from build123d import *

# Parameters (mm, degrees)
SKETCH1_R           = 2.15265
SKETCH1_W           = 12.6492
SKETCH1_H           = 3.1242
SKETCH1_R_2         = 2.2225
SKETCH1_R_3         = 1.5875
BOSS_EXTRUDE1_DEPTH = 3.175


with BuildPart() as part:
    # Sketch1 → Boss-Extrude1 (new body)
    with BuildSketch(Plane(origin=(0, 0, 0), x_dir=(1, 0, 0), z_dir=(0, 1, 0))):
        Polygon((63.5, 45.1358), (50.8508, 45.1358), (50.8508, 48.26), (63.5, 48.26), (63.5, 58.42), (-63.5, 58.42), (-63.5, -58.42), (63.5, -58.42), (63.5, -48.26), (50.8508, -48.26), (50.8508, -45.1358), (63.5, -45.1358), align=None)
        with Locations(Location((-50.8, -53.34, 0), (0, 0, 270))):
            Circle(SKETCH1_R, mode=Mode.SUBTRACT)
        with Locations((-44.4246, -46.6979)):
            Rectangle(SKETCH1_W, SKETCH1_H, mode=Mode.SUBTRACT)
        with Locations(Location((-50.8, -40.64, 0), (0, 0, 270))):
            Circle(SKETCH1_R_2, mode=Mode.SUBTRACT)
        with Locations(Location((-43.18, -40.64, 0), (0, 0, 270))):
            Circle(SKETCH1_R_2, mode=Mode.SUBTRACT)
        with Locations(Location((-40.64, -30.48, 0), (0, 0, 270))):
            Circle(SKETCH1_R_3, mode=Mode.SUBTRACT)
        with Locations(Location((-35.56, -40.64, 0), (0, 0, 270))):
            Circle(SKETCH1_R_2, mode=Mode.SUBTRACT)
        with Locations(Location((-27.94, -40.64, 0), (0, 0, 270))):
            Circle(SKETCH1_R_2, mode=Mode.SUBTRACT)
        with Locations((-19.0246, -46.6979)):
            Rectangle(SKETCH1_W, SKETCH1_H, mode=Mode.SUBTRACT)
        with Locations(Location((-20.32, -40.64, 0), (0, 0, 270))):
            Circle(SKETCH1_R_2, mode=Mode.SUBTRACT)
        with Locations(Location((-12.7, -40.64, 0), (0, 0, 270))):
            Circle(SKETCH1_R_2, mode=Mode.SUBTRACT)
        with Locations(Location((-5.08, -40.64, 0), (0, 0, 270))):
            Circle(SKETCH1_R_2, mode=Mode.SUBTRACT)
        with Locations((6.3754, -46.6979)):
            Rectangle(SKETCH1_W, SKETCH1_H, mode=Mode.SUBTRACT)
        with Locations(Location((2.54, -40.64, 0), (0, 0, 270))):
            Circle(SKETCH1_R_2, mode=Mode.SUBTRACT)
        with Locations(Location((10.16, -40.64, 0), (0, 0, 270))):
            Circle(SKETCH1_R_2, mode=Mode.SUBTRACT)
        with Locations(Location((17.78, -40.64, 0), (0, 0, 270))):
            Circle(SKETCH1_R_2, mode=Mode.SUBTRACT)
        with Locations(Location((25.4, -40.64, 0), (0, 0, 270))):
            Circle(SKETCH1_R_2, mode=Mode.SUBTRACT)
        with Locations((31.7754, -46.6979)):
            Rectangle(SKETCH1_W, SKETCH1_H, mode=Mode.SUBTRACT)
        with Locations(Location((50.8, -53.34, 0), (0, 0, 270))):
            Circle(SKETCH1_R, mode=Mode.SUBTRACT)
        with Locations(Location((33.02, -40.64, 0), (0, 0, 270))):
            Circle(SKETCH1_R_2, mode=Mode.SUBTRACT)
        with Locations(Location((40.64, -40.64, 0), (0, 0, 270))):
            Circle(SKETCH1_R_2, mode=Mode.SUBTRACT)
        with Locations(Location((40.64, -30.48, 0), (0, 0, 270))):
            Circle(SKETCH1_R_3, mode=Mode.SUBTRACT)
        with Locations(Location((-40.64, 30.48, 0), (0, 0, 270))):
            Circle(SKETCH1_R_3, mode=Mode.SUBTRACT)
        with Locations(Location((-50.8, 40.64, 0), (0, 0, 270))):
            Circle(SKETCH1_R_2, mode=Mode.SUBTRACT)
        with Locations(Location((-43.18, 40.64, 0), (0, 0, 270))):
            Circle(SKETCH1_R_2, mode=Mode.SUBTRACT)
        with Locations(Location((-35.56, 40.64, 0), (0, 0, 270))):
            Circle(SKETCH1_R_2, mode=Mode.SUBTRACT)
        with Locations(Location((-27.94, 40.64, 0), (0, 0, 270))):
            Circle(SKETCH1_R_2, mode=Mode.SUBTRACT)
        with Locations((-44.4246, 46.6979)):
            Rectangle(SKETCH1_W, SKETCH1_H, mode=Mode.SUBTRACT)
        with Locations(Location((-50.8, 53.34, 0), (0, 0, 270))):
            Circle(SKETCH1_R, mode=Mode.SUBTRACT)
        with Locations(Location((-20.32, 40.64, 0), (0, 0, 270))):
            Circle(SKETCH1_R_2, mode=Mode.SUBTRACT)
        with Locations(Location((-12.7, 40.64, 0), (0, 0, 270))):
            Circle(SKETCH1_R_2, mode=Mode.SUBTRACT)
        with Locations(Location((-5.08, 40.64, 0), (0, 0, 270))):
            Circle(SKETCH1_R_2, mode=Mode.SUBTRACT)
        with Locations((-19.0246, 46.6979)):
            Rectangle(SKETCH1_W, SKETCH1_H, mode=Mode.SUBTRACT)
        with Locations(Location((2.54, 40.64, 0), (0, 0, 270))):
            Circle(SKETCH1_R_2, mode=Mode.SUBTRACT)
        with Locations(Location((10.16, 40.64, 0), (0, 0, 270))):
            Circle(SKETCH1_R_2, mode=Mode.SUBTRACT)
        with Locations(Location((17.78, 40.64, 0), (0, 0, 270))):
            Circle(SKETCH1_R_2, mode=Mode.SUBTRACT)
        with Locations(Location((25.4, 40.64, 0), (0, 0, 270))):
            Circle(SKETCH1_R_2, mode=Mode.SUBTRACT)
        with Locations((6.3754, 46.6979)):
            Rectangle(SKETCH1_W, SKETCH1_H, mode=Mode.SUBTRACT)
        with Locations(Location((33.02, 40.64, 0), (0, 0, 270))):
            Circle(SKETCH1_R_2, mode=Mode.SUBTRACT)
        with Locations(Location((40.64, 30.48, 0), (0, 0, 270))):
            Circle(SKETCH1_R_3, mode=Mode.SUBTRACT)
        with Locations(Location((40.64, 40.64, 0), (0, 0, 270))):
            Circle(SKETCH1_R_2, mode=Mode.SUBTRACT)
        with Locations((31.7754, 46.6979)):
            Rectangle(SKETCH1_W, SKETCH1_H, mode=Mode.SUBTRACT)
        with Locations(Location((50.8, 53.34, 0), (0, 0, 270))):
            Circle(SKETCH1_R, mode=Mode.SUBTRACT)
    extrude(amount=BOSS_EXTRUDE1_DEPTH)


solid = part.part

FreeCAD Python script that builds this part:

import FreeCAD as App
import Part
import Sketcher

V = App.Vector
Q = App.Units.Quantity

doc = App.newDocument("Part")
body = doc.addObject("PartDesign::Body", "Body")

# Sketch on XZ plane
sketch1 = body.newObject("Sketcher::SketchObject", "Sketch")
sketch1.AttachmentSupport = (doc.getObject("XZ_Plane"), [""])
sketch1.MapMode = "FlatFace"
sketch1.addGeometry([
    Part.LineSegment(V(63.5, -45.1358, 0), V(50.8508, -45.1358, 0)),  # 0
    Part.LineSegment(V(50.8508, -45.1358, 0), V(50.8508, -48.26, 0)),  # 1
    Part.LineSegment(V(50.8508, -48.26, 0), V(63.5, -48.26, 0)),  # 2
    Part.LineSegment(V(63.5, -48.26, 0), V(63.5, -58.42, 0)),  # 3
    Part.LineSegment(V(63.5, -58.42, 0), V(-63.5, -58.42, 0)),  # 4
    Part.LineSegment(V(-63.5, -58.42, 0), V(-63.5, 58.42, 0)),  # 5
    Part.LineSegment(V(-63.5, 58.42, 0), V(63.5, 58.42, 0)),  # 6
    Part.LineSegment(V(63.5, 58.42, 0), V(63.5, 48.26, 0)),  # 7
    Part.LineSegment(V(63.5, 48.26, 0), V(50.8508, 48.26, 0)),  # 8
    Part.LineSegment(V(50.8508, 48.26, 0), V(50.8508, 45.1358, 0)),  # 9
    Part.LineSegment(V(50.8508, 45.1358, 0), V(63.5, 45.1358, 0)),  # 10
    Part.LineSegment(V(63.5, 45.1358, 0), V(63.5, -45.1358, 0)),  # 11
    Part.Circle(V(-50.8, 53.34, 0), V(0, 0, 1), 2.15265),  # 12
    Part.LineSegment(V(-38.1, 48.26, 0), V(-50.7492, 48.26, 0)),  # 13
    Part.LineSegment(V(-50.7492, 48.26, 0), V(-50.7492, 45.1358, 0)),  # 14
    Part.LineSegment(V(-50.7492, 45.1358, 0), V(-38.1, 45.1358, 0)),  # 15
    Part.LineSegment(V(-38.1, 45.1358, 0), V(-38.1, 48.26, 0)),  # 16
    Part.Circle(V(-50.8, 40.64, 0), V(0, 0, 1), 2.2225),  # 17
    Part.Circle(V(-43.18, 40.64, 0), V(0, 0, 1), 2.2225),  # 18
    Part.Circle(V(-40.64, 30.48, 0), V(0, 0, 1), 1.5875),  # 19
    Part.Circle(V(-35.56, 40.64, 0), V(0, 0, 1), 2.2225),  # 20
    Part.Circle(V(-27.94, 40.64, 0), V(0, 0, 1), 2.2225),  # 21
    Part.LineSegment(V(-12.7, 48.26, 0), V(-25.3492, 48.26, 0)),  # 22
    Part.LineSegment(V(-25.3492, 48.26, 0), V(-25.3492, 45.1358, 0)),  # 23
    Part.LineSegment(V(-25.3492, 45.1358, 0), V(-12.7, 45.1358, 0)),  # 24
    Part.LineSegment(V(-12.7, 45.1358, 0), V(-12.7, 48.26, 0)),  # 25
    Part.Circle(V(-20.32, 40.64, 0), V(0, 0, 1), 2.2225),  # 26
    Part.Circle(V(-12.7, 40.64, 0), V(0, 0, 1), 2.2225),  # 27
    Part.Circle(V(-5.08, 40.64, 0), V(0, 0, 1), 2.2225),  # 28
    Part.LineSegment(V(12.7, 48.26, 0), V(0.0508, 48.26, 0)),  # 29
    Part.LineSegment(V(0.0508, 48.26, 0), V(0.0508, 45.1358, 0)),  # 30
    Part.LineSegment(V(0.0508, 45.1358, 0), V(12.7, 45.1358, 0)),  # 31
    Part.LineSegment(V(12.7, 45.1358, 0), V(12.7, 48.26, 0)),  # 32
    Part.Circle(V(2.54, 40.64, 0), V(0, 0, 1), 2.2225),  # 33
    Part.Circle(V(10.16, 40.64, 0), V(0, 0, 1), 2.2225),  # 34
    Part.Circle(V(17.78, 40.64, 0), V(0, 0, 1), 2.2225),  # 35
    Part.Circle(V(25.4, 40.64, 0), V(0, 0, 1), 2.2225),  # 36
    Part.LineSegment(V(38.1, 48.26, 0), V(25.4508, 48.26, 0)),  # 37
    Part.LineSegment(V(25.4508, 48.26, 0), V(25.4508, 45.1358, 0)),  # 38
    Part.LineSegment(V(25.4508, 45.1358, 0), V(38.1, 45.1358, 0)),  # 39
    Part.LineSegment(V(38.1, 45.1358, 0), V(38.1, 48.26, 0)),  # 40
    Part.Circle(V(50.8, 53.34, 0), V(0, 0, 1), 2.15265),  # 41
    Part.Circle(V(33.02, 40.64, 0), V(0, 0, 1), 2.2225),  # 42
    Part.Circle(V(40.64, 40.64, 0), V(0, 0, 1), 2.2225),  # 43
    Part.Circle(V(40.64, 30.48, 0), V(0, 0, 1), 1.5875),  # 44
    Part.Circle(V(-40.64, -30.48, 0), V(0, 0, 1), 1.5875),  # 45
    Part.Circle(V(-50.8, -40.64, 0), V(0, 0, 1), 2.2225),  # 46
    Part.Circle(V(-43.18, -40.64, 0), V(0, 0, 1), 2.2225),  # 47
    Part.Circle(V(-35.56, -40.64, 0), V(0, 0, 1), 2.2225),  # 48
    Part.Circle(V(-27.94, -40.64, 0), V(0, 0, 1), 2.2225),  # 49
    Part.LineSegment(V(-38.1, -45.1358, 0), V(-50.7492, -45.1358, 0)),  # 50
    Part.LineSegment(V(-50.7492, -45.1358, 0), V(-50.7492, -48.26, 0)),  # 51
    Part.LineSegment(V(-50.7492, -48.26, 0), V(-38.1, -48.26, 0)),  # 52
    Part.LineSegment(V(-38.1, -48.26, 0), V(-38.1, -45.1358, 0)),  # 53
    Part.Circle(V(-50.8, -53.34, 0), V(0, 0, 1), 2.15265),  # 54
    Part.Circle(V(-20.32, -40.64, 0), V(0, 0, 1), 2.2225),  # 55
    Part.Circle(V(-12.7, -40.64, 0), V(0, 0, 1), 2.2225),  # 56
    Part.Circle(V(-5.08, -40.64, 0), V(0, 0, 1), 2.2225),  # 57
    Part.LineSegment(V(-12.7, -45.1358, 0), V(-25.3492, -45.1358, 0)),  # 58
    Part.LineSegment(V(-25.3492, -45.1358, 0), V(-25.3492, -48.26, 0)),  # 59
    Part.LineSegment(V(-25.3492, -48.26, 0), V(-12.7, -48.26, 0)),  # 60
    Part.LineSegment(V(-12.7, -48.26, 0), V(-12.7, -45.1358, 0)),  # 61
    Part.Circle(V(2.54, -40.64, 0), V(0, 0, 1), 2.2225),  # 62
    Part.Circle(V(10.16, -40.64, 0), V(0, 0, 1), 2.2225),  # 63
    Part.Circle(V(17.78, -40.64, 0), V(0, 0, 1), 2.2225),  # 64
    Part.Circle(V(25.4, -40.64, 0), V(0, 0, 1), 2.2225),  # 65
    Part.LineSegment(V(12.7, -45.1358, 0), V(0.0508, -45.1358, 0)),  # 66
    Part.LineSegment(V(0.0508, -45.1358, 0), V(0.0508, -48.26, 0)),  # 67
    Part.LineSegment(V(0.0508, -48.26, 0), V(12.7, -48.26, 0)),  # 68
    Part.LineSegment(V(12.7, -48.26, 0), V(12.7, -45.1358, 0)),  # 69
    Part.Circle(V(33.02, -40.64, 0), V(0, 0, 1), 2.2225),  # 70
    Part.Circle(V(40.64, -30.48, 0), V(0, 0, 1), 1.5875),  # 71
    Part.Circle(V(40.64, -40.64, 0), V(0, 0, 1), 2.2225),  # 72
    Part.LineSegment(V(38.1, -45.1358, 0), V(25.4508, -45.1358, 0)),  # 73
    Part.LineSegment(V(25.4508, -45.1358, 0), V(25.4508, -48.26, 0)),  # 74
    Part.LineSegment(V(25.4508, -48.26, 0), V(38.1, -48.26, 0)),  # 75
    Part.LineSegment(V(38.1, -48.26, 0), V(38.1, -45.1358, 0)),  # 76
    Part.Circle(V(50.8, -53.34, 0), V(0, 0, 1), 2.15265),  # 77
], False)
sketch1.addConstraint([
    Sketcher.Constraint("Coincident", 0, 2, 1, 1),
    Sketcher.Constraint("Coincident", 1, 2, 2, 1),
    Sketcher.Constraint("Coincident", 2, 2, 3, 1),
    Sketcher.Constraint("Coincident", 3, 2, 4, 1),
    Sketcher.Constraint("Coincident", 4, 2, 5, 1),
    Sketcher.Constraint("Coincident", 5, 2, 6, 1),
    Sketcher.Constraint("Coincident", 6, 2, 7, 1),
    Sketcher.Constraint("Coincident", 7, 2, 8, 1),
    Sketcher.Constraint("Coincident", 8, 2, 9, 1),
    Sketcher.Constraint("Coincident", 9, 2, 10, 1),
    Sketcher.Constraint("Coincident", 10, 2, 11, 1),
    Sketcher.Constraint("Coincident", 11, 2, 0, 1),
    Sketcher.Constraint("Coincident", 13, 2, 14, 1),
    Sketcher.Constraint("Coincident", 14, 2, 15, 1),
    Sketcher.Constraint("Coincident", 15, 2, 16, 1),
    Sketcher.Constraint("Coincident", 16, 2, 13, 1),
    Sketcher.Constraint("Coincident", 22, 2, 23, 1),
    Sketcher.Constraint("Coincident", 23, 2, 24, 1),
    Sketcher.Constraint("Coincident", 24, 2, 25, 1),
    Sketcher.Constraint("Coincident", 25, 2, 22, 1),
    Sketcher.Constraint("Coincident", 29, 2, 30, 1),
    Sketcher.Constraint("Coincident", 30, 2, 31, 1),
    Sketcher.Constraint("Coincident", 31, 2, 32, 1),
    Sketcher.Constraint("Coincident", 32, 2, 29, 1),
    Sketcher.Constraint("Coincident", 37, 2, 38, 1),
    Sketcher.Constraint("Coincident", 38, 2, 39, 1),
    Sketcher.Constraint("Coincident", 39, 2, 40, 1),
    Sketcher.Constraint("Coincident", 40, 2, 37, 1),
    Sketcher.Constraint("Coincident", 50, 2, 51, 1),
    Sketcher.Constraint("Coincident", 51, 2, 52, 1),
    Sketcher.Constraint("Coincident", 52, 2, 53, 1),
    Sketcher.Constraint("Coincident", 53, 2, 50, 1),
    Sketcher.Constraint("Coincident", 58, 2, 59, 1),
    Sketcher.Constraint("Coincident", 59, 2, 60, 1),
    Sketcher.Constraint("Coincident", 60, 2, 61, 1),
    Sketcher.Constraint("Coincident", 61, 2, 58, 1),
    Sketcher.Constraint("Coincident", 66, 2, 67, 1),
    Sketcher.Constraint("Coincident", 67, 2, 68, 1),
    Sketcher.Constraint("Coincident", 68, 2, 69, 1),
    Sketcher.Constraint("Coincident", 69, 2, 66, 1),
    Sketcher.Constraint("Coincident", 73, 2, 74, 1),
    Sketcher.Constraint("Coincident", 74, 2, 75, 1),
    Sketcher.Constraint("Coincident", 75, 2, 76, 1),
    Sketcher.Constraint("Coincident", 76, 2, 73, 1),
    Sketcher.Constraint("Horizontal", 0),
    Sketcher.Constraint("Vertical", 1),
    Sketcher.Constraint("Horizontal", 2),
    Sketcher.Constraint("Vertical", 3),
    Sketcher.Constraint("Horizontal", 4),
    Sketcher.Constraint("Vertical", 5),
    Sketcher.Constraint("Horizontal", 6),
    Sketcher.Constraint("Vertical", 7),
    Sketcher.Constraint("Horizontal", 8),
    Sketcher.Constraint("Vertical", 9),
    Sketcher.Constraint("Horizontal", 10),
    Sketcher.Constraint("Vertical", 11),
    Sketcher.Constraint("Horizontal", 13),
    Sketcher.Constraint("Vertical", 14),
    Sketcher.Constraint("Horizontal", 15),
    Sketcher.Constraint("Vertical", 16),
    Sketcher.Constraint("Horizontal", 22),
    Sketcher.Constraint("Vertical", 23),
    Sketcher.Constraint("Horizontal", 24),
    Sketcher.Constraint("Vertical", 25),
    Sketcher.Constraint("Horizontal", 29),
    Sketcher.Constraint("Vertical", 30),
    Sketcher.Constraint("Horizontal", 31),
    Sketcher.Constraint("Vertical", 32),
    Sketcher.Constraint("Horizontal", 37),
    Sketcher.Constraint("Vertical", 38),
    Sketcher.Constraint("Horizontal", 39),
    Sketcher.Constraint("Vertical", 40),
    Sketcher.Constraint("Horizontal", 50),
    Sketcher.Constraint("Vertical", 51),
    Sketcher.Constraint("Horizontal", 52),
    Sketcher.Constraint("Vertical", 53),
    Sketcher.Constraint("Horizontal", 58),
    Sketcher.Constraint("Vertical", 59),
    Sketcher.Constraint("Horizontal", 60),
    Sketcher.Constraint("Vertical", 61),
    Sketcher.Constraint("Horizontal", 66),
    Sketcher.Constraint("Vertical", 67),
    Sketcher.Constraint("Horizontal", 68),
    Sketcher.Constraint("Vertical", 69),
    Sketcher.Constraint("Horizontal", 73),
    Sketcher.Constraint("Vertical", 74),
    Sketcher.Constraint("Horizontal", 75),
    Sketcher.Constraint("Vertical", 76),
    Sketcher.Constraint("Equal", 17, 18),
    Sketcher.Constraint("Equal", 18, 20),
    Sketcher.Constraint("Equal", 20, 21),
    Sketcher.Constraint("Equal", 21, 26),
    Sketcher.Constraint("Equal", 26, 27),
    Sketcher.Constraint("Equal", 27, 28),
    Sketcher.Constraint("Equal", 28, 33),
    Sketcher.Constraint("Equal", 33, 34),
    Sketcher.Constraint("Equal", 34, 35),
    Sketcher.Constraint("Equal", 35, 36),
    Sketcher.Constraint("Equal", 12, 41),
    Sketcher.Constraint("Equal", 36, 42),
    Sketcher.Constraint("Equal", 42, 43),
    Sketcher.Constraint("Equal", 19, 44),
    Sketcher.Constraint("Equal", 44, 45),
    Sketcher.Constraint("Equal", 43, 46),
    Sketcher.Constraint("Equal", 46, 47),
    Sketcher.Constraint("Equal", 47, 48),
    Sketcher.Constraint("Equal", 48, 49),
    Sketcher.Constraint("Equal", 41, 54),
    Sketcher.Constraint("Equal", 49, 55),
    Sketcher.Constraint("Equal", 55, 56),
    Sketcher.Constraint("Equal", 56, 57),
    Sketcher.Constraint("Equal", 57, 62),
    Sketcher.Constraint("Equal", 62, 63),
    Sketcher.Constraint("Equal", 63, 64),
    Sketcher.Constraint("Equal", 64, 65),
    Sketcher.Constraint("Equal", 65, 70),
    Sketcher.Constraint("Equal", 45, 71),
    Sketcher.Constraint("Equal", 70, 72),
    Sketcher.Constraint("Equal", 54, 77),
    Sketcher.Constraint("Symmetric", 44, 3, 45, 3, -1, 1),
    Sketcher.Constraint("Symmetric", 41, 3, 54, 3, -1, 1),
    Sketcher.Constraint("Symmetric", 19, 3, 71, 3, -1, 1),
    Sketcher.Constraint("Symmetric", 12, 3, 77, 3, -1, 1),
    Sketcher.Constraint("Symmetric", 3, 2, 5, 2, -1, 1),
    Sketcher.Constraint("Symmetric", 40, 2, 52, 2, -1, 1),
    Sketcher.Constraint("Symmetric", 32, 2, 60, 2, -1, 1),
    Sketcher.Constraint("Symmetric", 25, 2, 68, 2, -1, 1),
    Sketcher.Constraint("Symmetric", 16, 2, 75, 2, -1, 1),
    Sketcher.Constraint("Symmetric", 12, 3, 41, 3, -2),
    Sketcher.Constraint("Symmetric", 19, 3, 44, 3, -2),
    Sketcher.Constraint("Symmetric", 24, 2, 31, 2, -2),
    Sketcher.Constraint("Symmetric", 15, 2, 39, 2, -2),
    Sketcher.Constraint("Symmetric", 17, 3, 46, 3, -1),
    Sketcher.Constraint("Symmetric", 18, 3, 47, 3, -1),
    Sketcher.Constraint("Symmetric", 20, 3, 48, 3, -1),
    Sketcher.Constraint("Symmetric", 21, 3, 49, 3, -1),
    Sketcher.Constraint("Symmetric", 26, 3, 55, 3, -1),
    Sketcher.Constraint("Symmetric", 27, 3, 56, 3, -1),
    Sketcher.Constraint("Symmetric", 28, 3, 57, 3, -1),
    Sketcher.Constraint("Symmetric", 33, 3, 62, 3, -1),
    Sketcher.Constraint("Symmetric", 34, 3, 63, 3, -1),
    Sketcher.Constraint("Symmetric", 35, 3, 64, 3, -1),
    Sketcher.Constraint("Symmetric", 36, 3, 65, 3, -1),
    Sketcher.Constraint("Symmetric", 42, 3, 70, 3, -1),
    Sketcher.Constraint("Symmetric", 43, 3, 72, 3, -1),
    Sketcher.Constraint("Symmetric", 2, 2, 7, 2, -1),
    Sketcher.Constraint("Symmetric", 0, 2, 9, 2, -1),
    Sketcher.Constraint("Symmetric", 14, 2, 50, 2, -1),
    Sketcher.Constraint("Symmetric", 23, 2, 58, 2, -1),
    Sketcher.Constraint("Symmetric", 30, 2, 66, 2, -1),
    Sketcher.Constraint("Symmetric", 38, 2, 73, 2, -1),
    Sketcher.Constraint("Horizontal", 17, 3, 18, 3),
    Sketcher.Constraint("Horizontal", 18, 3, 20, 3),
    Sketcher.Constraint("Horizontal", 20, 3, 21, 3),
    Sketcher.Constraint("Horizontal", 21, 3, 26, 3),
    Sketcher.Constraint("Horizontal", 26, 3, 27, 3),
    Sketcher.Constraint("Horizontal", 27, 3, 28, 3),
    Sketcher.Constraint("Horizontal", 28, 3, 33, 3),
    Sketcher.Constraint("Horizontal", 33, 3, 34, 3),
    Sketcher.Constraint("Horizontal", 34, 3, 35, 3),
    Sketcher.Constraint("Horizontal", 35, 3, 36, 3),
    Sketcher.Constraint("Horizontal", 36, 3, 42, 3),
    Sketcher.Constraint("Horizontal", 42, 3, 43, 3),
    Sketcher.Constraint("Horizontal", 8, 2, 13, 2),
    Sketcher.Constraint("Horizontal", 10, 2, 14, 2),
    Sketcher.Constraint("Horizontal", 16, 2, 22, 2),
    Sketcher.Constraint("Horizontal", 15, 2, 23, 2),
    Sketcher.Constraint("Horizontal", 25, 2, 29, 2),
    Sketcher.Constraint("Horizontal", 32, 2, 37, 2),
    Sketcher.Constraint("Vertical", 12, 3, 17, 3),
    Sketcher.Constraint("Vertical", 43, 3, 44, 3),
    Sketcher.Constraint("Vertical", 7, 2, 10, 2),
    Sketcher.Constraint("Vertical", 56, 3, 24, 2),
    Sketcher.Constraint("Equal", 10, 13),
    Sketcher.Constraint("Equal", 15, 22),
    Sketcher.Constraint("Equal", 24, 29),
    Sketcher.Constraint("Equal", 31, 37),
    Sketcher.Constraint("DistanceX", 4, 2, 4, 1, Q("5 in")),
    Sketcher.Constraint("Diameter", 17, Q("0.175 in")),
    Sketcher.Constraint("Diameter", 19, Q("0.125 in")),
    Sketcher.Constraint("DistanceY", 3, 2, 3, 1, Q("0.4 in")),
    Sketcher.Constraint("DistanceY", 5, 1, 5, 2, Q("4.6 in")),
    Sketcher.Constraint("DistanceX", 12, 3, -1, 1, Q("2 in")),
    Sketcher.Constraint("DistanceX", -1, 1, 36, 3, Q("1 in")),
    Sketcher.Constraint("Diameter", 12, Q("0.1695 in")),
    Sketcher.Constraint("DistanceY", -1, 1, 12, 3, Q("2.1 in")),
    Sketcher.Constraint("DistanceY", -1, 1, 17, 3, Q("1.6 in")),
    Sketcher.Constraint("DistanceX", 18, 3, -1, 1, Q("1.7 in")),
    Sketcher.Constraint("DistanceX", 19, 3, -1, 1, Q("1.6 in")),
    Sketcher.Constraint("DistanceY", -1, 1, 19, 3, Q("1.2 in")),
    Sketcher.Constraint("DistanceX", 20, 3, -1, 1, Q("1.4 in")),
    Sketcher.Constraint("DistanceX", 21, 3, -1, 1, Q("1.1 in")),
    Sketcher.Constraint("DistanceX", 26, 3, -1, 1, Q("0.8 in")),
    Sketcher.Constraint("DistanceX", 27, 3, -1, 1, Q("0.5 in")),
    Sketcher.Constraint("DistanceX", 28, 3, -1, 1, Q("0.2 in")),
    Sketcher.Constraint("DistanceX", -1, 1, 33, 3, Q("0.1 in")),
    Sketcher.Constraint("DistanceX", -1, 1, 34, 3, Q("0.4 in")),
    Sketcher.Constraint("DistanceX", -1, 1, 35, 3, Q("0.7 in")),
    Sketcher.Constraint("DistanceX", -1, 1, 42, 3, Q("1.3 in")),
    Sketcher.Constraint("DistanceX", 15, 2, -1, 1, Q("1.5 in")),
    Sketcher.Constraint("DistanceX", 0, 2, 0, 1, Q("0.498 in")),
    Sketcher.Constraint("DistanceY", 1, 2, 1, 1, Q("0.123 in")),
])
pad1 = body.newObject("PartDesign::Pad", "Pad")
pad1.Profile = sketch1
pad1.Length = Q("0.125 in")
pad1.Reversed = True

doc.recompute()
